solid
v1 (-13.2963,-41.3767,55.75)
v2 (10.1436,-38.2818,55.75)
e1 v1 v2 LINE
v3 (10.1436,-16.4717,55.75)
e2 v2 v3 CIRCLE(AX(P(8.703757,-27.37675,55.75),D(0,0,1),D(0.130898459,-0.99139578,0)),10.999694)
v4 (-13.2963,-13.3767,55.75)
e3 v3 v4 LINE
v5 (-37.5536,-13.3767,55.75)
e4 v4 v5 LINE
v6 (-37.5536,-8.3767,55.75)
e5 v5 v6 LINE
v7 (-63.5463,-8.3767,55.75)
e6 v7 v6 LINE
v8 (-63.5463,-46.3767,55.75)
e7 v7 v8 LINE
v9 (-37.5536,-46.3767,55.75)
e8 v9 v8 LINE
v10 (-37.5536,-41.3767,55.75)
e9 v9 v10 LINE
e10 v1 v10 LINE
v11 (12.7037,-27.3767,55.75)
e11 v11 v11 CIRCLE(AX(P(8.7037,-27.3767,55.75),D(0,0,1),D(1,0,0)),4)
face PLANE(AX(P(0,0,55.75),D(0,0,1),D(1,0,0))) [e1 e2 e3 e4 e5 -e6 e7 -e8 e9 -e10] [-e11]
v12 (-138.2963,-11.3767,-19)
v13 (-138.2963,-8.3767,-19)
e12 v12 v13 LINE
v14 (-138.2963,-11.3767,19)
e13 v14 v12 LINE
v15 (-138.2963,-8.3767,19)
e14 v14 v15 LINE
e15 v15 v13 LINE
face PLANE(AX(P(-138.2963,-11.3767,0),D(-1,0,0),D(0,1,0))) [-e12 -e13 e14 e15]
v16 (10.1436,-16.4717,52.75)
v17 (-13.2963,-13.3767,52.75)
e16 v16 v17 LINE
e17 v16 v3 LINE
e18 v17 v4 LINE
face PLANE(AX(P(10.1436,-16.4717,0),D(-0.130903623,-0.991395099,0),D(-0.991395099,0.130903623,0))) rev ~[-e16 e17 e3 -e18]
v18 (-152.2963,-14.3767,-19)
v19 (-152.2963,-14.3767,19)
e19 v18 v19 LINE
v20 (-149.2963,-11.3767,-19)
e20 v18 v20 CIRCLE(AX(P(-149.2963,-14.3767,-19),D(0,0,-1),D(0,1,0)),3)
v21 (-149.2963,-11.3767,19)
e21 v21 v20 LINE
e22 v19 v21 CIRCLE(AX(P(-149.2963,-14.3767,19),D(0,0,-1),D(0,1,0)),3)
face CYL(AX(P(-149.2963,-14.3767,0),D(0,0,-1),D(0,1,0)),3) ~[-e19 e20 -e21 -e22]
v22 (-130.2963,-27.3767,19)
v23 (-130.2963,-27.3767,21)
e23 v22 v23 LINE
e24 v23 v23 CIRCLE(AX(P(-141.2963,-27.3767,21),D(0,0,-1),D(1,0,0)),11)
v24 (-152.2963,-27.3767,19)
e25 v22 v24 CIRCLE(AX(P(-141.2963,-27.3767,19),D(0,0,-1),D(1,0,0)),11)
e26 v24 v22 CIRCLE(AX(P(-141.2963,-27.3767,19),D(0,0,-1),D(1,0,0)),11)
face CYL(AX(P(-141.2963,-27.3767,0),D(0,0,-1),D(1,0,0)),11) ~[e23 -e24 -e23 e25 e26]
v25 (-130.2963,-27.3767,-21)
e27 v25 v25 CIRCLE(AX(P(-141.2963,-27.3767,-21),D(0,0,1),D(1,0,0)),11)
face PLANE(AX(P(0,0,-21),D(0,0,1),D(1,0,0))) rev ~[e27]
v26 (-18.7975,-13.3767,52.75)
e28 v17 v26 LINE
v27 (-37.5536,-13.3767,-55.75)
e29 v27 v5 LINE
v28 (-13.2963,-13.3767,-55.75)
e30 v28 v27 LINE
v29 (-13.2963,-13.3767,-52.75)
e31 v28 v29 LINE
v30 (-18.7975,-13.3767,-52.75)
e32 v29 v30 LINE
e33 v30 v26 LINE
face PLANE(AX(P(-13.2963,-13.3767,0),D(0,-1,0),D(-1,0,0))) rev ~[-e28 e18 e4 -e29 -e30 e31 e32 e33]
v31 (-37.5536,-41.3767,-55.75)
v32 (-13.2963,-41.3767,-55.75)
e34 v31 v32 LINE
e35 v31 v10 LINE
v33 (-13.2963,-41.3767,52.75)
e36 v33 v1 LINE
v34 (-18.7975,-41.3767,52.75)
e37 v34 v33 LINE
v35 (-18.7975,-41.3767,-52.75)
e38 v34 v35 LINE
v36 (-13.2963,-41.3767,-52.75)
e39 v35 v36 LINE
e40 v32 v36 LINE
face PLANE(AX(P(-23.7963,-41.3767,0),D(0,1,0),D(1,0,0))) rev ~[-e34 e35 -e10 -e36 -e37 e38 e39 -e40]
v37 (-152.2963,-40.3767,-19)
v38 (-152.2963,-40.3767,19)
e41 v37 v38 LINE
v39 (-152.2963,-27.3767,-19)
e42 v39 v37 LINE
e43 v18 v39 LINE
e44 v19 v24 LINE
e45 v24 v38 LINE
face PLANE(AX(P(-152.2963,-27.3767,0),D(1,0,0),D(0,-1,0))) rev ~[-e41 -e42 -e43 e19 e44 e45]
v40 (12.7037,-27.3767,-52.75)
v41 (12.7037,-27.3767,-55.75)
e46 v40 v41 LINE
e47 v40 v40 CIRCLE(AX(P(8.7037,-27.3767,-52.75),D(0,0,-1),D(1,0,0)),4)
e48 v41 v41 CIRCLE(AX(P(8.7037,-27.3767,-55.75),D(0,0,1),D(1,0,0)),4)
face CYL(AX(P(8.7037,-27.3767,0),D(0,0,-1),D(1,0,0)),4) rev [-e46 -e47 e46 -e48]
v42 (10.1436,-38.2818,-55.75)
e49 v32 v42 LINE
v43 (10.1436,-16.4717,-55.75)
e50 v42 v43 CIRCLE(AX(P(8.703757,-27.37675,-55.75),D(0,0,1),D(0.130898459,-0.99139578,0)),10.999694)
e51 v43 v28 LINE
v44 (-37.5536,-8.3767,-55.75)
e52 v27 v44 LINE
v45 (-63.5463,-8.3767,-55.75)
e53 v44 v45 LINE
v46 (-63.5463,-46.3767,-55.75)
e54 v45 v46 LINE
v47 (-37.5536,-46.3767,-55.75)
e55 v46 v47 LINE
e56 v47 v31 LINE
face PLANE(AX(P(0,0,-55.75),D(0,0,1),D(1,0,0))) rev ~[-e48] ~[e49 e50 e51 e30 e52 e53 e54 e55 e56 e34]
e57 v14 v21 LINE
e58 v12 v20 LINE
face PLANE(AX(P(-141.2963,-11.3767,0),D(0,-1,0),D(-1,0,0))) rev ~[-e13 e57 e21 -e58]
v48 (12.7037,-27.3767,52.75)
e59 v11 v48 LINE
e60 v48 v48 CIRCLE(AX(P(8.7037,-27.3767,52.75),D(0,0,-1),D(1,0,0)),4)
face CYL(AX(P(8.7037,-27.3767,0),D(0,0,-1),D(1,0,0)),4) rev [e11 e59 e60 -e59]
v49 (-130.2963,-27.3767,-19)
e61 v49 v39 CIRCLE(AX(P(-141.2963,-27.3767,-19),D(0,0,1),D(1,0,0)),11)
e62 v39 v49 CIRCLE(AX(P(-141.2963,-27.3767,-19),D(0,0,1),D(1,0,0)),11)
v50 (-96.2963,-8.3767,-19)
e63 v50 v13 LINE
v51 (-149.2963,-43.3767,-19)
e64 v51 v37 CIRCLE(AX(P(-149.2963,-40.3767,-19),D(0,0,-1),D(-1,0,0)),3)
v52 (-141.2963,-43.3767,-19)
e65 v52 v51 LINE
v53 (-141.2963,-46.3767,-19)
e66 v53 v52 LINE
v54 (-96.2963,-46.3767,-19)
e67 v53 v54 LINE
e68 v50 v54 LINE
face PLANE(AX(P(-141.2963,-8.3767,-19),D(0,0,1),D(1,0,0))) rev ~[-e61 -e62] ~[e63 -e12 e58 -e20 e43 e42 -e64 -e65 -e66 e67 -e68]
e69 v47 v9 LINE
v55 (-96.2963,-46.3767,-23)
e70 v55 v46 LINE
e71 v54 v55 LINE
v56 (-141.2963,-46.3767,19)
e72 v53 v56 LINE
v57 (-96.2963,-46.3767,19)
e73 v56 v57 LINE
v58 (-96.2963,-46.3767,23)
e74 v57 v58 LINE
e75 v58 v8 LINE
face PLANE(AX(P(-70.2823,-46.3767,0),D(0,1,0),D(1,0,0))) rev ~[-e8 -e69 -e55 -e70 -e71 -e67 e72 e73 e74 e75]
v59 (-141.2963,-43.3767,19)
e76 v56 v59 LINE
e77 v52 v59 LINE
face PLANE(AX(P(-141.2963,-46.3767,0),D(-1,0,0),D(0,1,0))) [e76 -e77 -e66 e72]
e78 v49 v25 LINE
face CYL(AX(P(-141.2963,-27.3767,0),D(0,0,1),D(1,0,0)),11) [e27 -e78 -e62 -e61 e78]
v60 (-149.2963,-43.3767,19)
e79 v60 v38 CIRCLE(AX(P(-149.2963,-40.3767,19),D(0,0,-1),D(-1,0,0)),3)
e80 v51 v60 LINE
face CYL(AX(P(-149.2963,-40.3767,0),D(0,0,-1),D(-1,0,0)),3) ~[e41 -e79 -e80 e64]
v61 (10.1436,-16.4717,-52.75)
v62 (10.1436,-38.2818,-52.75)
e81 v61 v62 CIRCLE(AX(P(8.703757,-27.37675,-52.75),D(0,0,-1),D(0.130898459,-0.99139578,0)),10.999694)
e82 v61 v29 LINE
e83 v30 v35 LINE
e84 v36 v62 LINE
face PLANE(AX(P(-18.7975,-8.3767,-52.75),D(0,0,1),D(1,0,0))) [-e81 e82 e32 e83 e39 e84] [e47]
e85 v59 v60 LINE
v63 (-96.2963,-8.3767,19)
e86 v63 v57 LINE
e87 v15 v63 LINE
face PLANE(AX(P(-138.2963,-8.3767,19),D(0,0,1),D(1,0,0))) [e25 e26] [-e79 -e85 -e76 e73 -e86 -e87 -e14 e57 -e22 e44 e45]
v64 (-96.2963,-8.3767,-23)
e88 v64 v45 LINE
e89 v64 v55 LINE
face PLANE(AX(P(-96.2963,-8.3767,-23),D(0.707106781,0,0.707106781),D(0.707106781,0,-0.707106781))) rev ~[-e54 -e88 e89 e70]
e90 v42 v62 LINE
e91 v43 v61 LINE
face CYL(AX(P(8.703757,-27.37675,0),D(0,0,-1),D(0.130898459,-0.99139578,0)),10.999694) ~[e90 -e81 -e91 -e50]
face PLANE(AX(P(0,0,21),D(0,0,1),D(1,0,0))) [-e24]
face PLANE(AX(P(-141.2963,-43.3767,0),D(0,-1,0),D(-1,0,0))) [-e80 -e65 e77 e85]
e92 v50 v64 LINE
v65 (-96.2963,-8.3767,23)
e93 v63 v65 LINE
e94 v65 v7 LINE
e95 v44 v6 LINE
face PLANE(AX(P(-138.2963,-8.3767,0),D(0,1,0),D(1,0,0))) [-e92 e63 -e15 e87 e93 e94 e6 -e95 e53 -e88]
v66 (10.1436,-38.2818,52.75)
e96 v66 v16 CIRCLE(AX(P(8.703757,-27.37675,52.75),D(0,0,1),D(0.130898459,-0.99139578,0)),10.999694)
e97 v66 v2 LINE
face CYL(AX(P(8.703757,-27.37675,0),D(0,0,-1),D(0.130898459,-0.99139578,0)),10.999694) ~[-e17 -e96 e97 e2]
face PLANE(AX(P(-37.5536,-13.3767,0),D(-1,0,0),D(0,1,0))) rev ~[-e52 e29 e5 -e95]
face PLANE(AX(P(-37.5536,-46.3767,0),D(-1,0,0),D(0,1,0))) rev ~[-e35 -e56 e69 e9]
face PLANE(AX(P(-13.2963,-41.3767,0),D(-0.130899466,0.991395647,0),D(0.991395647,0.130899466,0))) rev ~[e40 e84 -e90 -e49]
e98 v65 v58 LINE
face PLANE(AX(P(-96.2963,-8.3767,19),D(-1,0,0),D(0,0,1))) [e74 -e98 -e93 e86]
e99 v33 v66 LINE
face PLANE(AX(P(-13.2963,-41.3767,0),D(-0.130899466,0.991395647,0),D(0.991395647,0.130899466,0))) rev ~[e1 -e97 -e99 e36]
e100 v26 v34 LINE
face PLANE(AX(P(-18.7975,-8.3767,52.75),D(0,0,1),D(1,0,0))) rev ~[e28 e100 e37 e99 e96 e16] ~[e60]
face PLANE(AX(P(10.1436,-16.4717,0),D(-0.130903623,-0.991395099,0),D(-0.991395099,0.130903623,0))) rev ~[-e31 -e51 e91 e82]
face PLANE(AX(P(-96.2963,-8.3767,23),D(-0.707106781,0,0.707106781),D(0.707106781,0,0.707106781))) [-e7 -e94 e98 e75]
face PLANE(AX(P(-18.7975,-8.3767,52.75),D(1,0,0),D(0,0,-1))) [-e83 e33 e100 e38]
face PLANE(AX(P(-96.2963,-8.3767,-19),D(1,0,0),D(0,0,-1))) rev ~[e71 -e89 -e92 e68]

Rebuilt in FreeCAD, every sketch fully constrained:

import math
import FreeCAD as App
import Part
import Sketcher
from FreeCAD import Vector
Q = App.Units.Quantity

doc = App.newDocument("Part")
params = doc.addObject("Spreadsheet::Sheet", "Params")
for row, (alias, value) in enumerate([
    ("sketch1_radius", "3 mm"),
    ("sketch1_height", "3 mm"),
    ("sketch1_diameter", "8 mm"),
    ("sketch1_width", "8 mm"),
    ("sketch1_height2", "5 mm"),
    ("pad1_length", "111.5 mm"),
    ("sketch2_height", "105.5 mm"),
    ("pocket1_length", "105.5 mm"),
    ("sketch3_width", "56 mm"),
    ("sketch3_width2", "88.75 mm"),
    ("pocket2_length", "105.5 mm"),
    ("sketch4_diameter", "22 mm"),
    ("pad2_length", "42 mm"),
], start=1):
    params.set(f"A{row}", alias)
    params.set(f"B{row}", "=" + value)
    params.setAlias(f"B{row}", alias)

body = doc.addObject("PartDesign::Body", "Body")

sketch1 = body.newObject("Sketcher::SketchObject", "Sketch")
sketch1.AttachmentSupport = (doc.getObject("XY_Plane"), [""])
sketch1.MapMode = "FlatFace"
sketch1.addGeometry(Part.LineSegment(Vector(-152.3, -14.4, 0), Vector(-152.3, -40.4, 0)), False)
sketch1.addGeometry(Part.ArcOfCircle(Part.Circle(Vector(-149.3, -40.4, 0), Vector(0, 0, 1), 3), math.radians(180), math.radians(270)), False)
sketch1.addGeometry(Part.LineSegment(Vector(-149.3, -43.4, 0), Vector(-141.3, -43.4, 0)), False)
sketch1.addGeometry(Part.LineSegment(Vector(-141.3, -43.4, 0), Vector(-141.3, -46.4, 0)), False)
sketch1.addGeometry(Part.LineSegment(Vector(-141.3, -46.4, 0), Vector(-37.6, -46.4, 0)), False)
sketch1.addGeometry(Part.LineSegment(Vector(-37.6, -46.4, 0), Vector(-37.6, -41.4, 0)), False)
sketch1.addGeometry(Part.LineSegment(Vector(-37.6, -41.4, 0), Vector(-13.3, -41.4, 0)), False)
sketch1.addGeometry(Part.LineSegment(Vector(-13.3, -41.4, 0), Vector(10.1, -38.3, 0)), False)
sketch1.addGeometry(Part.ArcOfCircle(Part.Circle(Vector(8.7, -27.4, 0), Vector(0, 0, 1), 11), math.radians(-82), math.radians(82)), False)
sketch1.addGeometry(Part.LineSegment(Vector(10.1, -16.5, 0), Vector(-13.3, -13.4, 0)), False)
sketch1.addGeometry(Part.LineSegment(Vector(-13.3, -13.4, 0), Vector(-37.6, -13.4, 0)), False)
sketch1.addGeometry(Part.LineSegment(Vector(-37.6, -13.4, 0), Vector(-37.6, -8.4, 0)), False)
sketch1.addGeometry(Part.LineSegment(Vector(-37.6, -8.4, 0), Vector(-138.3, -8.4, 0)), False)
sketch1.addGeometry(Part.LineSegment(Vector(-138.3, -8.4, 0), Vector(-138.3, -11.4, 0)), False)
sketch1.addGeometry(Part.LineSegment(Vector(-138.3, -11.4, 0), Vector(-149.3, -11.4, 0)), False)
sketch1.addGeometry(Part.ArcOfCircle(Part.Circle(Vector(-149.3, -14.4, 0), Vector(0, 0, 1), 3), math.radians(90), math.radians(180)), False)
sketch1.addGeometry(Part.Circle(Vector(8.7, -27.4, 0), Vector(0, 0, 1), 4), False)
sketch1.addConstraint(Sketcher.Constraint("Tangent", 0, 2, 1, 1))
sketch1.addConstraint(Sketcher.Constraint("Tangent", 1, 2, 2, 1))
sketch1.addConstraint(Sketcher.Constraint("Coincident", 2, 2, 3, 1))
sketch1.addConstraint(Sketcher.Constraint("Coincident", 3, 2, 4, 1))
sketch1.addConstraint(Sketcher.Constraint("Coincident", 4, 2, 5, 1))
sketch1.addConstraint(Sketcher.Constraint("Coincident", 5, 2, 6, 1))
sketch1.addConstraint(Sketcher.Constraint("Coincident", 6, 2, 7, 1))
sketch1.addConstraint(Sketcher.Constraint("Tangent", 7, 2, 8, 1))
sketch1.addConstraint(Sketcher.Constraint("Tangent", 8, 2, 9, 1))
sketch1.addConstraint(Sketcher.Constraint("Coincident", 9, 2, 10, 1))
sketch1.addConstraint(Sketcher.Constraint("Coincident", 10, 2, 11, 1))
sketch1.addConstraint(Sketcher.Constraint("Coincident", 11, 2, 12, 1))
sketch1.addConstraint(Sketcher.Constraint("Coincident", 12, 2, 13, 1))
sketch1.addConstraint(Sketcher.Constraint("Coincident", 13, 2, 14, 1))
sketch1.addConstraint(Sketcher.Constraint("Tangent", 14, 2, 15, 1))
sketch1.addConstraint(Sketcher.Constraint("Tangent", 15, 2, 0, 1))
sketch1.addConstraint(Sketcher.Constraint("Vertical", 0))
sketch1.addConstraint(Sketcher.Constraint("Horizontal", 2))
sketch1.addConstraint(Sketcher.Constraint("Vertical", 3))
sketch1.addConstraint(Sketcher.Constraint("Horizontal", 4))
sketch1.addConstraint(Sketcher.Constraint("Vertical", 5))
sketch1.addConstraint(Sketcher.Constraint("Horizontal", 6))
sketch1.addConstraint(Sketcher.Constraint("Horizontal", 10))
sketch1.addConstraint(Sketcher.Constraint("Vertical", 11))
sketch1.addConstraint(Sketcher.Constraint("Horizontal", 12))
sketch1.addConstraint(Sketcher.Constraint("Vertical", 13))
sketch1.addConstraint(Sketcher.Constraint("Horizontal", 14))
sketch1.addConstraint(Sketcher.Constraint("Coincident", 16, 3, 8, 3))
sketch1.addConstraint(Sketcher.Constraint("Equal", 1, 15))
sketch1.addConstraint(Sketcher.Constraint("Vertical", 7, 2, 8, 2))
sketch1.addConstraint(Sketcher.Constraint("Vertical", 6, 2, 9, 2))
sketch1.addConstraint(Sketcher.Constraint("Vertical", 5, 2, 10, 2))
sketch1.addConstraint(Sketcher.Constraint("Equal", 5, 11))
sketch1.addConstraint(Sketcher.Constraint("Equal", 3, 13))
sketch1.addConstraint(Sketcher.Constraint("Radius", 1, Q("3 mm")))
sketch1.addConstraint(Sketcher.Constraint("DistanceY", 3, 2, 3, 1, Q("3 mm")))
sketch1.addConstraint(Sketcher.Constraint("Diameter", 16, Q("8 mm")))
sketch1.addConstraint(Sketcher.Constraint("DistanceY", 1, 2, 8, 3, Q("16 mm")))
sketch1.addConstraint(Sketcher.Constraint("DistanceX", 6, 2, 8, 3, Q("22 mm")))
sketch1.addConstraint(Sketcher.Constraint("DistanceX", 2, 2, 12, 2, Q("3 mm")))
sketch1.addConstraint(Sketcher.Constraint("Radius", 8, Q("10.9998 mm")))
sketch1.addConstraint(Sketcher.Constraint("DistanceX", 2, 1, 2, 2, Q("8 mm")))
sketch1.addConstraint(Sketcher.Constraint("DistanceY", 5, 1, 5, 2, Q("5 mm")))
sketch1.addConstraint(Sketcher.Constraint("DistanceX", 1, 3, 8, 3, Q("158 mm")))
sketch1.addConstraint(Sketcher.Constraint("DistanceX", 4, 1, 4, 2, Q("103.7427 mm")))
sketch1.addConstraint(Sketcher.Constraint("DistanceX", 1, 3, -1, 1, Q("149.2963 mm")))
sketch1.addConstraint(Sketcher.Constraint("DistanceY", 1, 3, -1, 1, Q("40.3767 mm")))
sketch1.setExpression("Constraints[34]", "Params.sketch1_radius")
sketch1.setExpression("Constraints[35]", "Params.sketch1_height")
sketch1.setExpression("Constraints[36]", "Params.sketch1_diameter")
sketch1.setExpression("Constraints[41]", "Params.sketch1_width")
sketch1.setExpression("Constraints[42]", "Params.sketch1_height2")
pad1 = body.newObject("PartDesign::Pad", "Pad")
pad1.Profile = sketch1
pad1.setExpression("Length", "Params.pad1_length")
pad1.Midplane = True

sketch2 = body.newObject("Sketcher::SketchObject", "Sketch001")
sketch2.AttachmentSupport = (doc.getObject("XZ_Plane"), [""])
sketch2.MapMode = "FlatFace"
sketch2.AttachmentOffset = App.Placement(Vector(0, 0, 8.3767), App.Rotation())
sketch2.addGeometry(Part.LineSegment(Vector(-19, -53, 0), Vector(-19, 53, 0)), False)
sketch2.addGeometry(Part.LineSegment(Vector(-19, 53, 0), Vector(21, 53, 0)), False)
sketch2.addGeometry(Part.LineSegment(Vector(21, 53, 0), Vector(21, -53, 0)), False)
sketch2.addGeometry(Part.LineSegment(Vector(21, -53, 0), Vector(-19, -53, 0)), False)
sketch2.addConstraint(Sketcher.Constraint("Coincident", 0, 2, 1, 1))
sketch2.addConstraint(Sketcher.Constraint("Coincident", 1, 2, 2, 1))
sketch2.addConstraint(Sketcher.Constraint("Coincident", 2, 2, 3, 1))
sketch2.addConstraint(Sketcher.Constraint("Coincident", 3, 2, 0, 1))
sketch2.addConstraint(Sketcher.Constraint("Vertical", 0))
sketch2.addConstraint(Sketcher.Constraint("Horizontal", 1))
sketch2.addConstraint(Sketcher.Constraint("Vertical", 2))
sketch2.addConstraint(Sketcher.Constraint("Horizontal", 3))
sketch2.addConstraint(Sketcher.Constraint("DistanceY", 0, 1, 0, 2, Q("105.5 mm")))
sketch2.addConstraint(Sketcher.Constraint("DistanceX", 1, 1, 1, 2, Q("40.256 mm")))
sketch2.addConstraint(Sketcher.Constraint("DistanceY", -1, 1, 0, 2, Q("52.75 mm")))
sketch2.addConstraint(Sketcher.Constraint("DistanceX", 0, 2, -1, 1, Q("18.7975 mm")))
sketch2.setExpression("Constraints[8]", "Params.sketch2_height")
pocket1 = body.newObject("PartDesign::Pocket", "Pocket")
pocket1.Profile = sketch2
pocket1.setExpression("Length", "Params.pocket1_length")
pocket1.Reversed = True

sketch3 = body.newObject("Sketcher::SketchObject", "Sketch002")
sketch3.AttachmentSupport = (doc.getObject("XZ_Plane"), [""])
sketch3.MapMode = "FlatFace"
sketch3.AttachmentOffset = App.Placement(Vector(0, 0, 8.3767), App.Rotation())
sketch3.addGeometry(Part.LineSegment(Vector(-96.3, 19, 0), Vector(-152.3, 19, 0)), False)
sketch3.addGeometry(Part.LineSegment(Vector(-152.3, 19, 0), Vector(-152.3, 55.8, 0)), False)
sketch3.addGeometry(Part.LineSegment(Vector(-152.3, 55.8, 0), Vector(-63.5, 55.8, 0)), False)
sketch3.addGeometry(Part.LineSegment(Vector(-63.5, 55.8, 0), Vector(-96.3, 23, 0)), False)
sketch3.addGeometry(Part.LineSegment(Vector(-96.3, 23, 0), Vector(-96.3, 19, 0)), False)
sketch3.addGeometry(Part.LineSegment(Vector(-96.3, -19, 0), Vector(-96.3, -23, 0)), False)
sketch3.addGeometry(Part.LineSegment(Vector(-96.3, -23, 0), Vector(-63.5, -55.8, 0)), False)
sketch3.addGeometry(Part.LineSegment(Vector(-63.5, -55.8, 0), Vector(-152.3, -55.8, 0)), False)
sketch3.addGeometry(Part.LineSegment(Vector(-152.3, -55.8, 0), Vector(-152.3, -19, 0)), False)
sketch3.addGeometry(Part.LineSegment(Vector(-152.3, -19, 0), Vector(-96.3, -19, 0)), False)
sketch3.addConstraint(Sketcher.Constraint("Coincident", 0, 2, 1, 1))
sketch3.addConstraint(Sketcher.Constraint("Coincident", 1, 2, 2, 1))
sketch3.addConstraint(Sketcher.Constraint("Coincident", 2, 2, 3, 1))
sketch3.addConstraint(Sketcher.Constraint("Coincident", 3, 2, 4, 1))
sketch3.addConstraint(Sketcher.Constraint("Coincident", 4, 2, 0, 1))
sketch3.addConstraint(Sketcher.Constraint("Coincident", 5, 2, 6, 1))
sketch3.addConstraint(Sketcher.Constraint("Coincident", 6, 2, 7, 1))
sketch3.addConstraint(Sketcher.Constraint("Coincident", 7, 2, 8, 1))
sketch3.addConstraint(Sketcher.Constraint("Coincident", 8, 2, 9, 1))
sketch3.addConstraint(Sketcher.Constraint("Coincident", 9, 2, 5, 1))
sketch3.addConstraint(Sketcher.Constraint("Horizontal", 0))
sketch3.addConstraint(Sketcher.Constraint("Vertical", 1))
sketch3.addConstraint(Sketcher.Constraint("Horizontal", 2))
sketch3.addConstraint(Sketcher.Constraint("Vertical", 4))
sketch3.addConstraint(Sketcher.Constraint("Vertical", 5))
sketch3.addConstraint(Sketcher.Constraint("Horizontal", 7))
sketch3.addConstraint(Sketcher.Constraint("Vertical", 8))
sketch3.addConstraint(Sketcher.Constraint("Horizontal", 9))
sketch3.addConstraint(Sketcher.Constraint("Symmetric", 3, 2, 5, 2, -1))
sketch3.addConstraint(Sketcher.Constraint("Symmetric", 2, 2, 6, 2, -1))
sketch3.addConstraint(Sketcher.Constraint("Symmetric", 0, 2, 8, 2, -1))
sketch3.addConstraint(Sketcher.Constraint("Perpendicular", 3, 6))
sketch3.addConstraint(Sketcher.Constraint("DistanceY", -1, 1, 0, 2, Q("19 mm")))
sketch3.addConstraint(Sketcher.Constraint("DistanceY", -1, 1, 3, 2, Q("23 mm")))
sketch3.addConstraint(Sketcher.Constraint("DistanceX", 0, 2, 0, 1, Q("56 mm")))
sketch3.addConstraint(Sketcher.Constraint("DistanceX", 2, 1, 2, 2, Q("88.75 mm")))
sketch3.addConstraint(Sketcher.Constraint("DistanceX", 0, 2, -1, 1, Q("152.2963 mm")))
sketch3.setExpression("Constraints[24]", "Params.sketch3_width")
sketch3.setExpression("Constraints[25]", "Params.sketch3_width2")
pocket2 = body.newObject("PartDesign::Pocket", "Pocket001")
pocket2.Profile = sketch3
pocket2.setExpression("Length", "Params.pocket2_length")
pocket2.Reversed = True

sketch4 = body.newObject("Sketcher::SketchObject", "Sketch003")
sketch4.AttachmentSupport = (doc.getObject("XY_Plane"), [""])
sketch4.MapMode = "FlatFace"
sketch4.addGeometry(Part.Circle(Vector(-141, -27, 0), Vector(0, 0, 1), 11), False)
sketch4.addConstraint(Sketcher.Constraint("Diameter", 0, Q("22 mm")))
sketch4.addConstraint(Sketcher.Constraint("DistanceX", 0, 3, -1, 1, Q("141.2963 mm")))
sketch4.addConstraint(Sketcher.Constraint("DistanceY", 0, 3, -1, 1, Q("27.3767 mm")))
sketch4.setExpression("Constraints[0]", "Params.sketch4_diameter")
pad2 = body.newObject("PartDesign::Pad", "Pad001")
pad2.Profile = sketch4
pad2.setExpression("Length", "Params.pad2_length")
pad2.Midplane = True

doc.recompute()
